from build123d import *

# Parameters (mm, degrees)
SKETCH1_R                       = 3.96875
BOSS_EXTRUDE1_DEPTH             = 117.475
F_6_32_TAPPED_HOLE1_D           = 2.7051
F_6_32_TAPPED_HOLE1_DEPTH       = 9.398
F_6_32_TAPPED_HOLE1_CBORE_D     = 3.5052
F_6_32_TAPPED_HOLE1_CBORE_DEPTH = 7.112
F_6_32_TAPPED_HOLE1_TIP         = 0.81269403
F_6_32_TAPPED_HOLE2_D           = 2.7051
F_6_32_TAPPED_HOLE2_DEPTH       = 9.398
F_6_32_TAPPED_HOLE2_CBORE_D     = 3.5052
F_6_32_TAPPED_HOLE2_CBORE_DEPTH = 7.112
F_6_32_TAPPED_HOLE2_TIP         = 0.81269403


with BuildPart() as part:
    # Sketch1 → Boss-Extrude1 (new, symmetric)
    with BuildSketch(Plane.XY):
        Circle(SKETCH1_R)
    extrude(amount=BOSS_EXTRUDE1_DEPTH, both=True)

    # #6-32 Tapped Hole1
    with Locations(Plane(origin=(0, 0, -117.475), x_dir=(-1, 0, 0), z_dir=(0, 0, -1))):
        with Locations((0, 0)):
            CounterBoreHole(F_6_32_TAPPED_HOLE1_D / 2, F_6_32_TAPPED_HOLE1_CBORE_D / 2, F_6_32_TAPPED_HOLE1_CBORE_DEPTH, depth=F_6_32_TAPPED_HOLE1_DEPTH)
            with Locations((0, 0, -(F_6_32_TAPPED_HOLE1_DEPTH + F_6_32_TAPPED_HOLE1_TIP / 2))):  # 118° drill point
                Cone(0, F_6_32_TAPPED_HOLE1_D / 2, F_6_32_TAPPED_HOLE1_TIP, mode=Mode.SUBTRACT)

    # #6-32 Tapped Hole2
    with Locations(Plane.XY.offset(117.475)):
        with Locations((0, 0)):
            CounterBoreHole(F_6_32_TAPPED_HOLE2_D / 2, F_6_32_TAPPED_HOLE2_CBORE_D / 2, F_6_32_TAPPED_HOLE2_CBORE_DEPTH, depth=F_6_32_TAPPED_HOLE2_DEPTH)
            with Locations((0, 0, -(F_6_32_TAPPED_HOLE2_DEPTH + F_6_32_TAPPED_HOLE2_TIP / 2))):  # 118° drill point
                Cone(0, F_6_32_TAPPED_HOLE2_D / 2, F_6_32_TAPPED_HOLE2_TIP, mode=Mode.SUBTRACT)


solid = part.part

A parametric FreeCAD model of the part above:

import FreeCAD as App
import Part
import Sketcher
from FreeCAD import Vector
Q = App.Units.Quantity

doc = App.newDocument("Part")
body = doc.addObject("PartDesign::Body", "Body")

# Sketch on XY plane
sketch1 = body.newObject("Sketcher::SketchObject", "Sketch")
sketch1.AttachmentSupport = (doc.getObject("XY_Plane"), [""])
sketch1.MapMode = "FlatFace"
sketch1.addGeometry(Part.Circle(Vector(0, 0, 0), Vector(0, 0, 1), 3.96875), False)
sketch1.addConstraint([
    Sketcher.Constraint("Coincident", 0, 3, -1, 1),
    Sketcher.Constraint("Diameter", 0, Q("0.3125 in")),
])
pad1 = body.newObject("PartDesign::Pad", "Pad")
pad1.Profile = sketch1
pad1.Length = Q("9.25 in")
pad1.Midplane = True

# Sketch on XY plane
sketch2 = body.newObject("Sketcher::SketchObject", "Sketch001")
sketch2.AttachmentSupport = (doc.getObject("XY_Plane"), [""])
sketch2.MapMode = "FlatFace"
sketch2.AttachmentOffset = App.Placement(Vector(0, 0, -4.625 * 25.4), App.Rotation())
sketch2.addGeometry(Part.Circle(Vector(0, 0, 0), Vector(0, 0, 1), 1.35255), False)
sketch2.addConstraint([
    Sketcher.Constraint("Coincident", 0, 3, -1, 1),
    Sketcher.Constraint("Diameter", 0, Q("0.1065 in")),
])
doc.recompute()
hole = body.newObject("PartDesign::Hole", "Hole")
hole.Profile = sketch2
hole.ThreadType = "None"
hole.Diameter = Q("0.1065 in")
hole.DepthType = "Dimension"
hole.Depth = Q("0.37 in")
hole.DrillPoint = "Angled"
hole.DrillPointAngle = 118
hole.HoleCutType = "Counterbore"
hole.HoleCutDiameter = Q("0.138 in")
hole.HoleCutDepth = Q("0.28 in")
hole.Reversed = True

# Sketch on XY plane
sketch3 = body.newObject("Sketcher::SketchObject", "Sketch002")
sketch3.AttachmentSupport = (doc.getObject("XY_Plane"), [""])
sketch3.MapMode = "FlatFace"
sketch3.AttachmentOffset = App.Placement(Vector(0, 0, 4.625 * 25.4), App.Rotation())
sketch3.addGeometry(Part.Circle(Vector(0, 0, 0), Vector(0, 0, 1), 1.35255), False)
sketch3.addConstraint([
    Sketcher.Constraint("Coincident", 0, 3, -1, 1),
    Sketcher.Constraint("Diameter", 0, Q("0.1065 in")),
])
doc.recompute()
hole2 = body.newObject("PartDesign::Hole", "Hole001")
hole2.Profile = sketch3
hole2.ThreadType = "None"
hole2.Diameter = Q("0.1065 in")
hole2.DepthType = "Dimension"
hole2.Depth = Q("0.37 in")
hole2.DrillPoint = "Angled"
hole2.DrillPointAngle = 118
hole2.HoleCutType = "Counterbore"
hole2.HoleCutDiameter = Q("0.138 in")
hole2.HoleCutDepth = Q("0.28 in")

doc.recompute()
